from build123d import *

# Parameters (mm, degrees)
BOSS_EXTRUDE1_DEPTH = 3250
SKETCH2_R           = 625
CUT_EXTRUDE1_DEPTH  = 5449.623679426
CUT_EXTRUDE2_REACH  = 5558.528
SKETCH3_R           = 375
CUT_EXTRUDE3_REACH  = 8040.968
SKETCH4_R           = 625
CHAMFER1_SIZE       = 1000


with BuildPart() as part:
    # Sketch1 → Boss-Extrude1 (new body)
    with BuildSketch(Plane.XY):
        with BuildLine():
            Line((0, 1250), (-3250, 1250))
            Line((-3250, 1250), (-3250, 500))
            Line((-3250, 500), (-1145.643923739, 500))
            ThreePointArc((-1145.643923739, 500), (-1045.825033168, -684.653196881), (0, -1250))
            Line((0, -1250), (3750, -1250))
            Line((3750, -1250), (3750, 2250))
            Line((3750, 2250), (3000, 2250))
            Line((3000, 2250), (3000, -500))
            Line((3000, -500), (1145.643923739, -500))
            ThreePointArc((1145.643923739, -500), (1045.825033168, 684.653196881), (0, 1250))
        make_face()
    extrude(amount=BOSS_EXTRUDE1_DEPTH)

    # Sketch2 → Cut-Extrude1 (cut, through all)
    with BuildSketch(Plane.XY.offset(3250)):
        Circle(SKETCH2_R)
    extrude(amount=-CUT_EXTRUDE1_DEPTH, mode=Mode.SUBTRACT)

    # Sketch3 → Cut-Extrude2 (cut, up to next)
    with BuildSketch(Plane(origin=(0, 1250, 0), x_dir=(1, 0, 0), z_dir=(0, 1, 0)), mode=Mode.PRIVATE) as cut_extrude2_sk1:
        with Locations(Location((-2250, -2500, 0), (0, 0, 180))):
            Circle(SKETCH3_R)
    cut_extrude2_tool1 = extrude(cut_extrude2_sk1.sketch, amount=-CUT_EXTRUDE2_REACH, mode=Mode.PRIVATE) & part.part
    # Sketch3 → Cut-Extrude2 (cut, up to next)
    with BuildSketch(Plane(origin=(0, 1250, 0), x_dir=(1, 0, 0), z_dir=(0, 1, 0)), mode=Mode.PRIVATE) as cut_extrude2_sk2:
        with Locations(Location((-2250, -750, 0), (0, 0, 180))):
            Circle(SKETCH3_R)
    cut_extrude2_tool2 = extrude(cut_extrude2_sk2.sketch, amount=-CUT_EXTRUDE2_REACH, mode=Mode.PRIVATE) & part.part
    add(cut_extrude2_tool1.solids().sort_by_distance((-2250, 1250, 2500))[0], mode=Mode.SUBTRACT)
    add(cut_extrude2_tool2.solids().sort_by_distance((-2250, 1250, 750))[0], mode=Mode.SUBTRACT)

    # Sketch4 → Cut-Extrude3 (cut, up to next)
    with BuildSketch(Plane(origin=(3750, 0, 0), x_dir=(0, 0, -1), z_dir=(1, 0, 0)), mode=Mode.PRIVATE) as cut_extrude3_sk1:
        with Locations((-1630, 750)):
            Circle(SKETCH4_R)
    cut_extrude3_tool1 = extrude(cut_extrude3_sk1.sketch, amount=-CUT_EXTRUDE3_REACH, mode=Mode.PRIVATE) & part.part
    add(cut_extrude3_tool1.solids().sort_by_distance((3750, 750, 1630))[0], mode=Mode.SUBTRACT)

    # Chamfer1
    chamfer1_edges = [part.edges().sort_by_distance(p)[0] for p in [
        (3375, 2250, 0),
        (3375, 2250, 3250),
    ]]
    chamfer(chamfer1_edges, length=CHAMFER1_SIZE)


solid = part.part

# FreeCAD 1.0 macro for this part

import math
import FreeCAD as App
import Part
import Sketcher
from FreeCAD import Vector
Q = App.Units.Quantity


def edges_at(feature, points):
    """Names of the edges that pass closest to the given points."""
    edges = feature.Shape.Edges
    near = lambda p: min(range(len(edges)), key=lambda i: edges[i].distToShape(Part.Vertex(*p))[0])
    return sorted({f"Edge{near(p) + 1}" for p in points})

doc = App.newDocument("Part")
body = doc.addObject("PartDesign::Body", "Body")

# Sketch on XY plane
sketch1 = body.newObject("Sketcher::SketchObject", "Sketch")
sketch1.AttachmentSupport = (doc.getObject("XY_Plane"), [""])
sketch1.MapMode = "FlatFace"
sketch1.addGeometry([
    Part.LineSegment(Vector(0, 1250, 0), Vector(-3250, 1250, 0)),  # 0
    Part.LineSegment(Vector(-3250, 1250, 0), Vector(-3250, 500, 0)),  # 1
    Part.LineSegment(Vector(-3250, 500, 0), Vector(-1145.643924, 500, 0)),  # 2
    Part.ArcOfCircle(Part.Circle(Vector(0, 0, 0), Vector(0, 0, 1), 1250), math.radians(156.421822), math.radians(270)),  # 3
    Part.LineSegment(Vector(0, -1250, 0), Vector(3750, -1250, 0)),  # 4
    Part.LineSegment(Vector(3750, -1250, 0), Vector(3750, 2250, 0)),  # 5
    Part.LineSegment(Vector(3750, 2250, 0), Vector(3000, 2250, 0)),  # 6
    Part.LineSegment(Vector(3000, 2250, 0), Vector(3000, -500, 0)),  # 7
    Part.LineSegment(Vector(3000, -500, 0), Vector(1145.643924, -500, 0)),  # 8
    Part.ArcOfCircle(Part.Circle(Vector(0, 0, 0), Vector(0, 0, 1), 1250), math.radians(-23.578178), math.radians(90)),  # 9
], False)
sketch1.addConstraint([
    Sketcher.Constraint("Coincident", 0, 2, 1, 1),
    Sketcher.Constraint("Coincident", 1, 2, 2, 1),
    Sketcher.Constraint("Coincident", 2, 2, 3, 1),
    Sketcher.Constraint("Coincident", 3, 2, 4, 1),
    Sketcher.Constraint("Coincident", 4, 2, 5, 1),
    Sketcher.Constraint("Coincident", 5, 2, 6, 1),
    Sketcher.Constraint("Coincident", 6, 2, 7, 1),
    Sketcher.Constraint("Coincident", 7, 2, 8, 1),
    Sketcher.Constraint("Coincident", 8, 2, 9, 1),
    Sketcher.Constraint("Coincident", 9, 2, 0, 1),
    Sketcher.Constraint("Horizontal", 0),
    Sketcher.Constraint("Vertical", 1),
    Sketcher.Constraint("Horizontal", 2),
    Sketcher.Constraint("Horizontal", 4),
    Sketcher.Constraint("Vertical", 5),
    Sketcher.Constraint("Horizontal", 6),
    Sketcher.Constraint("Vertical", 7),
    Sketcher.Constraint("Horizontal", 8),
    Sketcher.Constraint("Coincident", 3, 3, -1, 1),
    Sketcher.Constraint("Coincident", 9, 3, -1, 1),
    Sketcher.Constraint("Equal", 3, 9),
    Sketcher.Constraint("Equal", 6, 1),
    Sketcher.Constraint("Radius", 3, Q("1250 mm")),
    Sketcher.Constraint("DistanceX", 0, 2, 0, 1, Q("3250 mm")),
    Sketcher.Constraint("DistanceX", 4, 1, 4, 2, Q("3750 mm")),
    Sketcher.Constraint("DistanceX", 6, 2, 6, 1, Q("750 mm")),
    Sketcher.Constraint("DistanceY", 5, 1, 5, 2, Q("3500 mm")),
    Sketcher.Constraint("DistanceY", 7, 2, 7, 1, Q("2750 mm")),
    Sketcher.Constraint("DistanceX", 0, 2, -1, 1, Q("3250 mm")),
    Sketcher.Constraint("DistanceX", -1, 1, 4, 2, Q("3750 mm")),
])
pad1 = body.newObject("PartDesign::Pad", "Pad")
pad1.Profile = sketch1
pad1.Length = 3250

# Sketch on XY plane
sketch2 = body.newObject("Sketcher::SketchObject", "Sketch001")
sketch2.AttachmentSupport = (doc.getObject("XY_Plane"), [""])
sketch2.MapMode = "FlatFace"
sketch2.AttachmentOffset = App.Placement(Vector(0, 0, 3250), App.Rotation())
sketch2.addGeometry(Part.Circle(Vector(0, 0, 0), Vector(0, 0, 1), 625), False)
sketch2.addConstraint([
    Sketcher.Constraint("Coincident", 0, 3, -1, 1),
    Sketcher.Constraint("Diameter", 0, Q("1250 mm")),
])
pocket1 = body.newObject("PartDesign::Pocket", "Pocket")
pocket1.Profile = sketch2
pocket1.Type = "ThroughAll"

# Sketch on XZ plane
sketch3 = body.newObject("Sketcher::SketchObject", "Sketch002")
sketch3.AttachmentSupport = (doc.getObject("XZ_Plane"), [""])
sketch3.MapMode = "FlatFace"
sketch3.AttachmentOffset = App.Placement(Vector(0, 0, -1250), App.Rotation())
sketch3.addGeometry(Part.Circle(Vector(-2250, 2500, 0), Vector(0, 0, 1), 375), False)
sketch3.addConstraint([
    Sketcher.Constraint("Diameter", 0, Q("750 mm")),
    Sketcher.Constraint("DistanceX", 0, 3, -1, 1, Q("2250 mm")),
    Sketcher.Constraint("DistanceY", -1, 1, 0, 3, Q("2500 mm")),
])
pocket2 = body.newObject("PartDesign::Pocket", "Pocket001")
pocket2.Profile = sketch3
pocket2.Type = "UpToFirst"
pocket2.Reversed = True

# Sketch on XZ plane
sketch4 = body.newObject("Sketcher::SketchObject", "Sketch003")
sketch4.AttachmentSupport = (doc.getObject("XZ_Plane"), [""])
sketch4.MapMode = "FlatFace"
sketch4.AttachmentOffset = App.Placement(Vector(0, 0, -1250), App.Rotation())
sketch4.addGeometry(Part.Circle(Vector(-2250, 750, 0), Vector(0, 0, 1), 375), False)
sketch4.addConstraint([
    Sketcher.Constraint("Diameter", 0, Q("750 mm")),
    Sketcher.Constraint("DistanceX", 0, 3, -1, 1, Q("2250 mm")),
    Sketcher.Constraint("DistanceY", -1, 1, 0, 3, Q("750 mm")),
])
pocket3 = body.newObject("PartDesign::Pocket", "Pocket002")
pocket3.Profile = sketch4
pocket3.Type = "UpToFirst"
pocket3.Reversed = True

# Sketch on YZ plane
sketch5 = body.newObject("Sketcher::SketchObject", "Sketch004")
sketch5.AttachmentSupport = (doc.getObject("YZ_Plane"), [""])
sketch5.MapMode = "FlatFace"
sketch5.AttachmentOffset = App.Placement(Vector(0, 0, 3750), App.Rotation())
sketch5.addGeometry(Part.Circle(Vector(750, 1630, 0), Vector(0, 0, 1), 625), False)
sketch5.addConstraint([
    Sketcher.Constraint("Diameter", 0, Q("1250 mm")),
    Sketcher.Constraint("DistanceX", -1, 1, 0, 3, Q("750 mm")),
    Sketcher.Constraint("DistanceY", -1, 1, 0, 3, Q("1630 mm")),
])
pocket4 = body.newObject("PartDesign::Pocket", "Pocket003")
pocket4.Profile = sketch5
pocket4.Type = "UpToFirst"
doc.recompute()

chamfer = body.newObject("PartDesign::Chamfer", "Chamfer")
chamfer.Base = (pocket4, edges_at(pocket4, [(3375, 2250, 0), (3375, 2250, 3250)]))
chamfer.Size = 1000

doc.recompute()
